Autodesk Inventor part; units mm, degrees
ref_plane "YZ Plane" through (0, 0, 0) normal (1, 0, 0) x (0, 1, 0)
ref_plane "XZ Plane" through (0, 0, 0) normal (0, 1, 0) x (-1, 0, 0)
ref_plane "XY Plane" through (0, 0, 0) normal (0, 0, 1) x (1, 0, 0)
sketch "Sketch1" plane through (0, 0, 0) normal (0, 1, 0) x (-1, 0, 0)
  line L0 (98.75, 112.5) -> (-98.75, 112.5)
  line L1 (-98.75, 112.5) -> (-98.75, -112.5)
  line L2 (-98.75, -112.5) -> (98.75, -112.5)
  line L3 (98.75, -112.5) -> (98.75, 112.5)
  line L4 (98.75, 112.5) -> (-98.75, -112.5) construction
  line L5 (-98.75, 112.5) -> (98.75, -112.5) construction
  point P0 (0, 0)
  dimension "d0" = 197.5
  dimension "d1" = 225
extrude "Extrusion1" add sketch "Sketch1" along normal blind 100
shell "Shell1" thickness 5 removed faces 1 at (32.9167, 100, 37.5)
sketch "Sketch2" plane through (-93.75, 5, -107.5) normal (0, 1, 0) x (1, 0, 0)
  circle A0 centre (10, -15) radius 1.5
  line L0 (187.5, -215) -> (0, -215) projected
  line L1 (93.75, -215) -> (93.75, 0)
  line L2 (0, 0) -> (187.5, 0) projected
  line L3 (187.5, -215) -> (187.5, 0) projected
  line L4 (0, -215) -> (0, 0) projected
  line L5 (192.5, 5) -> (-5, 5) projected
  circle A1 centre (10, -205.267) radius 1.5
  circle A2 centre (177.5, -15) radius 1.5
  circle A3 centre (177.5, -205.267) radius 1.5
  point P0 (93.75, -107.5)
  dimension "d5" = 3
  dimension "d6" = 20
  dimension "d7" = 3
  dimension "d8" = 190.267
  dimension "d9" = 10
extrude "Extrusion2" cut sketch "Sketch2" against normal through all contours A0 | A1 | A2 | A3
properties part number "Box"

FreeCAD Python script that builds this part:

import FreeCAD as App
import Part
import Sketcher
from FreeCAD import Vector


def faces_at(feature, points):
    """Names of the faces that lie closest to the given points."""
    faces = feature.Shape.Faces
    near = lambda p: min(range(len(faces)), key=lambda i: faces[i].distToShape(Part.Vertex(*p))[0])
    return sorted({f"Face{near(p) + 1}" for p in points})


def add_polygon(sketch, points):
    """Adds a closed chain of lines whose ends are joined by coincident constraints."""
    first, n = sketch.GeometryCount, len(points)
    for a, b in zip(points, points[1:] + points[:1]):
        sketch.addGeometry(Part.LineSegment(App.Vector(*a, 0), App.Vector(*b, 0)), False)
    for i in range(n):
        sketch.addConstraint(Sketcher.Constraint("Coincident", first + i, 2, first + (i + 1) % n, 1))

doc = App.newDocument("Part")
body = doc.addObject("PartDesign::Body", "Body")

sketch1 = body.newObject("Sketcher::SketchObject", "Sketch")
sketch1.AttachmentSupport = (doc.getObject("XZ_Plane"), [""])
sketch1.MapMode = "FlatFace"
add_polygon(sketch1, [(-99, -112), (-99, 112), (99, 112), (99, -112)])
sketch1.addConstraint(Sketcher.Constraint("Vertical", 0))
sketch1.addConstraint(Sketcher.Constraint("Horizontal", 1))
sketch1.addConstraint(Sketcher.Constraint("Vertical", 2))
sketch1.addConstraint(Sketcher.Constraint("Horizontal", 3))
sketch1.addConstraint(Sketcher.Constraint("Symmetric", 0, 2, 2, 2, -1, 1))
sketch1.addConstraint(Sketcher.Constraint("DistanceY", 0, 1, 0, 2, 225.0))
sketch1.addConstraint(Sketcher.Constraint("DistanceX", 1, 1, 1, 2, 197.5))
pad1 = body.newObject("PartDesign::Pad", "Pad")
pad1.Profile = sketch1
pad1.Length = 100
pad1.Reversed = True
doc.recompute()

thickness = body.newObject("PartDesign::Thickness", "Thickness")
thickness.Base = (pad1, faces_at(pad1, [(32.917, 100, 37.5)]))
thickness.Value = 5
thickness.Reversed = True
thickness.Join = "Intersection"

sketch2 = body.newObject("Sketcher::SketchObject", "Sketch001")
sketch2.AttachmentSupport = (doc.getObject("XZ_Plane"), [""])
sketch2.MapMode = "FlatFace"
sketch2.AttachmentOffset = App.Placement(Vector(0, 0, -5), App.Rotation())
sketch2.addGeometry(Part.Circle(Vector(-83.8, -92.5, 0), Vector(0, 0, 1), 1.5), False)
sketch2.addGeometry(Part.Circle(Vector(-83.8, 97.8, 0), Vector(0, 0, 1), 1.5), False)
sketch2.addGeometry(Part.Circle(Vector(83.8, -92.5, 0), Vector(0, 0, 1), 1.5), False)
sketch2.addGeometry(Part.Circle(Vector(83.8, 97.8, 0), Vector(0, 0, 1), 1.5), False)
sketch2.addConstraint(Sketcher.Constraint("Equal", 0, 1))
sketch2.addConstraint(Sketcher.Constraint("Equal", 1, 2))
sketch2.addConstraint(Sketcher.Constraint("Equal", 2, 3))
sketch2.addConstraint(Sketcher.Constraint("Symmetric", 0, 3, 2, 3, -2))
sketch2.addConstraint(Sketcher.Constraint("Symmetric", 1, 3, 3, 3, -2))
sketch2.addConstraint(Sketcher.Constraint("Vertical", 0, 3, 1, 3))
sketch2.addConstraint(Sketcher.Constraint("Diameter", 0, 3.0))
sketch2.addConstraint(Sketcher.Constraint("DistanceY", 0, 3, 1, 3, 190.267))
sketch2.addConstraint(Sketcher.Constraint("DistanceY", 0, 3, -1, 1, 92.5))
sketch2.addConstraint(Sketcher.Constraint("DistanceX", 0, 3, 2, 3, 167.5))
pocket1 = body.newObject("PartDesign::Pocket", "Pocket")
pocket1.Profile = sketch2
pocket1.Type = "ThroughAll"
pocket1.Reversed = True

doc.recompute()
